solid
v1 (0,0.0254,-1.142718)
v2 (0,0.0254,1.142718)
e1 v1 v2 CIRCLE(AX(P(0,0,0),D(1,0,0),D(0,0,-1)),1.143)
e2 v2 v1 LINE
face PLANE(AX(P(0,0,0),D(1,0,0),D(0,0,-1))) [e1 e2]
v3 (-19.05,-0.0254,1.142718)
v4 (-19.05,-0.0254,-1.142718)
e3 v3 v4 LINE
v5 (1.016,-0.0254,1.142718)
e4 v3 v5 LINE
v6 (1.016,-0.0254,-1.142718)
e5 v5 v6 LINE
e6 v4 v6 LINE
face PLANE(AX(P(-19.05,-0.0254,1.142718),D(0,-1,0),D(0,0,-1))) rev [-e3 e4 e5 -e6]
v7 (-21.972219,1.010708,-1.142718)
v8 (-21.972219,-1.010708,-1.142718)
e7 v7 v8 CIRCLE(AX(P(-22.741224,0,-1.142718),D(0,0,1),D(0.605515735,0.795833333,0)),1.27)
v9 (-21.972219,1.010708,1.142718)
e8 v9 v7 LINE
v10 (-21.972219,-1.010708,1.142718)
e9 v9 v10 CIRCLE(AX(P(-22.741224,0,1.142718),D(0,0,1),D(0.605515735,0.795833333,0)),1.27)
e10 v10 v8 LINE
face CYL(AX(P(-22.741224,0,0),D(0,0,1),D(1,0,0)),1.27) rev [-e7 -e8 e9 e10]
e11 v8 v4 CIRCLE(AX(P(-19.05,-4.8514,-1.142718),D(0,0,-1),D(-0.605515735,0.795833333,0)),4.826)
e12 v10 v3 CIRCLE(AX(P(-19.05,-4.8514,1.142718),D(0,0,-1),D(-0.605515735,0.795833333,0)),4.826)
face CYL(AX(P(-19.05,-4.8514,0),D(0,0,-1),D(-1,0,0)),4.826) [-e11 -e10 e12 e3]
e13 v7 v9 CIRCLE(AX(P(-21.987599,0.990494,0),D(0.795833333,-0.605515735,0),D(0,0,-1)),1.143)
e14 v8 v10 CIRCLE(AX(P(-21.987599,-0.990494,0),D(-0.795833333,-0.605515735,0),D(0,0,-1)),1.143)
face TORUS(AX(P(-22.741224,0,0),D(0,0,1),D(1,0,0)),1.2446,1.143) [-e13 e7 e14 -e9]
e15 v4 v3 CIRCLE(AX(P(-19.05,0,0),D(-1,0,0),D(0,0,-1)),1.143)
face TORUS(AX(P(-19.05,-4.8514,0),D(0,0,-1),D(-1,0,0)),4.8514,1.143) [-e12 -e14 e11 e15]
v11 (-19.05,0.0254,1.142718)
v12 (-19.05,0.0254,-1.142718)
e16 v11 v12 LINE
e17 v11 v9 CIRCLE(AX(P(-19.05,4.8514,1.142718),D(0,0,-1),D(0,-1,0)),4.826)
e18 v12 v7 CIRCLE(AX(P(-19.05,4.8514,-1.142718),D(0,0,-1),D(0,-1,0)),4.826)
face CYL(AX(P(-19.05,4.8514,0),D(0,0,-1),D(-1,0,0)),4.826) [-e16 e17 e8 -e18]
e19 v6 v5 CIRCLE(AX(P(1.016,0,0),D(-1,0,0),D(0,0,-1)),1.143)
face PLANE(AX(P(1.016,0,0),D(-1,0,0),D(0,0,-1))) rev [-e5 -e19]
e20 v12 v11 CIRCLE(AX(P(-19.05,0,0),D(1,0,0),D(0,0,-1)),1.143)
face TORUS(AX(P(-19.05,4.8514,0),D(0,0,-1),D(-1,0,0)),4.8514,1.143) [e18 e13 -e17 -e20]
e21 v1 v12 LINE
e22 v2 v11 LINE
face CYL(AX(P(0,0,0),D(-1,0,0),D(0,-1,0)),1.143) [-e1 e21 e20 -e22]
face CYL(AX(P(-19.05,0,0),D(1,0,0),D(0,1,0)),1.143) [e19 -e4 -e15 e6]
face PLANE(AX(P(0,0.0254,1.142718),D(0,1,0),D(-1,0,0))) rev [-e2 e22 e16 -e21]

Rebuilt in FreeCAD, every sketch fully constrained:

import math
import FreeCAD as App
import Part
import Sketcher

V = App.Vector
Q = App.Units.Quantity

doc = App.newDocument("Part")
params = doc.addObject("Spreadsheet::Sheet", "Params")
for row, (alias, value) in enumerate([
    ("sketch1_radius", "0.045 in"),
    ("sketch2_radius", "0.19 in"),
    ("sketch2_radius2", "0.05 in"),
    ("sketch2_width", "0.75 in"),
    ("sketch2_width2", "0.79 in"),
], start=1):
    params.set(f"A{row}", alias)
    params.set(f"B{row}", "=" + value)
    params.setAlias(f"B{row}", alias)

body = doc.addObject("PartDesign::Body", "Body")

sketch1 = body.newObject("Sketcher::SketchObject", "Sketch")
sketch1.AttachmentSupport = (doc.getObject("YZ_Plane"), [""])
sketch1.MapMode = "FlatFace"
sketch1.addGeometry([
    Part.LineSegment(V(0, 1.1, 0), V(0, -1.1, 0)),
    Part.ArcOfCircle(Part.Circle(V(0, 0, 0), V(0, 0, 1), 1.1), math.radians(-89), math.radians(89)),
], False)
sketch1.addConstraint([
    Sketcher.Constraint("Coincident", 0, 1, 1, 2),
    Sketcher.Constraint("Coincident", 1, 1, 0, 2),
    Sketcher.Constraint("Vertical", 0),
    Sketcher.Constraint("Coincident", 1, 3, -1, 1),
    Sketcher.Constraint("Radius", 1, Q("0.045 in")),
    Sketcher.Constraint("DistanceX", -1, 1, 0, 1, Q("0.001 in")),
])
sketch1.setExpression("Constraints[4]", "Params.sketch1_radius")

sketch2 = body.newObject("Sketcher::SketchObject", "Sketch001")
sketch2.AttachmentSupport = (doc.getObject("XY_Plane"), [""])
sketch2.MapMode = "FlatFace"
sketch2.addGeometry([
    Part.LineSegment(V(0, 0, 0), V(-19.1, 0, 0)),
    Part.ArcOfCircle(Part.Circle(V(-19, 4.9, 0), V(0, 0, 1), 4.8), math.radians(-127), math.radians(-90)),
    Part.ArcOfCircle(Part.Circle(V(-22.7, 0, 0), V(0, 0, 1), 1.3), math.radians(53), math.radians(307)),
    Part.ArcOfCircle(Part.Circle(V(-19, -4.9, 0), V(0, 0, 1), 4.8), math.radians(90), math.radians(127)),
    Part.LineSegment(V(-19.1, 0, 0), V(1, 0, 0)),
], False)
sketch2.addConstraint([
    Sketcher.Constraint("Tangent", 0, 2, 1, 2),
    Sketcher.Constraint("Tangent", 1, 1, 2, 1),
    Sketcher.Constraint("Tangent", 2, 2, 3, 2),
    Sketcher.Constraint("Tangent", 3, 1, 4, 1),
    Sketcher.Constraint("Horizontal", 0),
    Sketcher.Constraint("Horizontal", 4),
    Sketcher.Constraint("Equal", 1, 3),
    Sketcher.Constraint("Symmetric", 1, 3, 3, 3, -1),
    Sketcher.Constraint("PointOnObject", 0, 1, -2),
    Sketcher.Constraint("Radius", 1, Q("0.19 in")),
    Sketcher.Constraint("Radius", 2, Q("0.05 in")),
    Sketcher.Constraint("DistanceX", 0, 2, 0, 1, Q("0.75 in")),
    Sketcher.Constraint("DistanceX", 4, 1, 4, 2, Q("0.79 in")),
    Sketcher.Constraint("DistanceY", -1, 1, 1, 3, Q("0.191 in")),
])
sketch2.setExpression("Constraints[9]", "Params.sketch2_radius")
sketch2.setExpression("Constraints[10]", "Params.sketch2_radius2")
sketch2.setExpression("Constraints[11]", "Params.sketch2_width")
sketch2.setExpression("Constraints[12]", "Params.sketch2_width2")
doc.recompute()

additivepipe = body.newObject("PartDesign::AdditivePipe", "AdditivePipe")
additivepipe.Profile = sketch1
additivepipe.Spine = (sketch2, ["Edge1", "Edge2", "Edge3", "Edge4", "Edge5"])

doc.recompute()
